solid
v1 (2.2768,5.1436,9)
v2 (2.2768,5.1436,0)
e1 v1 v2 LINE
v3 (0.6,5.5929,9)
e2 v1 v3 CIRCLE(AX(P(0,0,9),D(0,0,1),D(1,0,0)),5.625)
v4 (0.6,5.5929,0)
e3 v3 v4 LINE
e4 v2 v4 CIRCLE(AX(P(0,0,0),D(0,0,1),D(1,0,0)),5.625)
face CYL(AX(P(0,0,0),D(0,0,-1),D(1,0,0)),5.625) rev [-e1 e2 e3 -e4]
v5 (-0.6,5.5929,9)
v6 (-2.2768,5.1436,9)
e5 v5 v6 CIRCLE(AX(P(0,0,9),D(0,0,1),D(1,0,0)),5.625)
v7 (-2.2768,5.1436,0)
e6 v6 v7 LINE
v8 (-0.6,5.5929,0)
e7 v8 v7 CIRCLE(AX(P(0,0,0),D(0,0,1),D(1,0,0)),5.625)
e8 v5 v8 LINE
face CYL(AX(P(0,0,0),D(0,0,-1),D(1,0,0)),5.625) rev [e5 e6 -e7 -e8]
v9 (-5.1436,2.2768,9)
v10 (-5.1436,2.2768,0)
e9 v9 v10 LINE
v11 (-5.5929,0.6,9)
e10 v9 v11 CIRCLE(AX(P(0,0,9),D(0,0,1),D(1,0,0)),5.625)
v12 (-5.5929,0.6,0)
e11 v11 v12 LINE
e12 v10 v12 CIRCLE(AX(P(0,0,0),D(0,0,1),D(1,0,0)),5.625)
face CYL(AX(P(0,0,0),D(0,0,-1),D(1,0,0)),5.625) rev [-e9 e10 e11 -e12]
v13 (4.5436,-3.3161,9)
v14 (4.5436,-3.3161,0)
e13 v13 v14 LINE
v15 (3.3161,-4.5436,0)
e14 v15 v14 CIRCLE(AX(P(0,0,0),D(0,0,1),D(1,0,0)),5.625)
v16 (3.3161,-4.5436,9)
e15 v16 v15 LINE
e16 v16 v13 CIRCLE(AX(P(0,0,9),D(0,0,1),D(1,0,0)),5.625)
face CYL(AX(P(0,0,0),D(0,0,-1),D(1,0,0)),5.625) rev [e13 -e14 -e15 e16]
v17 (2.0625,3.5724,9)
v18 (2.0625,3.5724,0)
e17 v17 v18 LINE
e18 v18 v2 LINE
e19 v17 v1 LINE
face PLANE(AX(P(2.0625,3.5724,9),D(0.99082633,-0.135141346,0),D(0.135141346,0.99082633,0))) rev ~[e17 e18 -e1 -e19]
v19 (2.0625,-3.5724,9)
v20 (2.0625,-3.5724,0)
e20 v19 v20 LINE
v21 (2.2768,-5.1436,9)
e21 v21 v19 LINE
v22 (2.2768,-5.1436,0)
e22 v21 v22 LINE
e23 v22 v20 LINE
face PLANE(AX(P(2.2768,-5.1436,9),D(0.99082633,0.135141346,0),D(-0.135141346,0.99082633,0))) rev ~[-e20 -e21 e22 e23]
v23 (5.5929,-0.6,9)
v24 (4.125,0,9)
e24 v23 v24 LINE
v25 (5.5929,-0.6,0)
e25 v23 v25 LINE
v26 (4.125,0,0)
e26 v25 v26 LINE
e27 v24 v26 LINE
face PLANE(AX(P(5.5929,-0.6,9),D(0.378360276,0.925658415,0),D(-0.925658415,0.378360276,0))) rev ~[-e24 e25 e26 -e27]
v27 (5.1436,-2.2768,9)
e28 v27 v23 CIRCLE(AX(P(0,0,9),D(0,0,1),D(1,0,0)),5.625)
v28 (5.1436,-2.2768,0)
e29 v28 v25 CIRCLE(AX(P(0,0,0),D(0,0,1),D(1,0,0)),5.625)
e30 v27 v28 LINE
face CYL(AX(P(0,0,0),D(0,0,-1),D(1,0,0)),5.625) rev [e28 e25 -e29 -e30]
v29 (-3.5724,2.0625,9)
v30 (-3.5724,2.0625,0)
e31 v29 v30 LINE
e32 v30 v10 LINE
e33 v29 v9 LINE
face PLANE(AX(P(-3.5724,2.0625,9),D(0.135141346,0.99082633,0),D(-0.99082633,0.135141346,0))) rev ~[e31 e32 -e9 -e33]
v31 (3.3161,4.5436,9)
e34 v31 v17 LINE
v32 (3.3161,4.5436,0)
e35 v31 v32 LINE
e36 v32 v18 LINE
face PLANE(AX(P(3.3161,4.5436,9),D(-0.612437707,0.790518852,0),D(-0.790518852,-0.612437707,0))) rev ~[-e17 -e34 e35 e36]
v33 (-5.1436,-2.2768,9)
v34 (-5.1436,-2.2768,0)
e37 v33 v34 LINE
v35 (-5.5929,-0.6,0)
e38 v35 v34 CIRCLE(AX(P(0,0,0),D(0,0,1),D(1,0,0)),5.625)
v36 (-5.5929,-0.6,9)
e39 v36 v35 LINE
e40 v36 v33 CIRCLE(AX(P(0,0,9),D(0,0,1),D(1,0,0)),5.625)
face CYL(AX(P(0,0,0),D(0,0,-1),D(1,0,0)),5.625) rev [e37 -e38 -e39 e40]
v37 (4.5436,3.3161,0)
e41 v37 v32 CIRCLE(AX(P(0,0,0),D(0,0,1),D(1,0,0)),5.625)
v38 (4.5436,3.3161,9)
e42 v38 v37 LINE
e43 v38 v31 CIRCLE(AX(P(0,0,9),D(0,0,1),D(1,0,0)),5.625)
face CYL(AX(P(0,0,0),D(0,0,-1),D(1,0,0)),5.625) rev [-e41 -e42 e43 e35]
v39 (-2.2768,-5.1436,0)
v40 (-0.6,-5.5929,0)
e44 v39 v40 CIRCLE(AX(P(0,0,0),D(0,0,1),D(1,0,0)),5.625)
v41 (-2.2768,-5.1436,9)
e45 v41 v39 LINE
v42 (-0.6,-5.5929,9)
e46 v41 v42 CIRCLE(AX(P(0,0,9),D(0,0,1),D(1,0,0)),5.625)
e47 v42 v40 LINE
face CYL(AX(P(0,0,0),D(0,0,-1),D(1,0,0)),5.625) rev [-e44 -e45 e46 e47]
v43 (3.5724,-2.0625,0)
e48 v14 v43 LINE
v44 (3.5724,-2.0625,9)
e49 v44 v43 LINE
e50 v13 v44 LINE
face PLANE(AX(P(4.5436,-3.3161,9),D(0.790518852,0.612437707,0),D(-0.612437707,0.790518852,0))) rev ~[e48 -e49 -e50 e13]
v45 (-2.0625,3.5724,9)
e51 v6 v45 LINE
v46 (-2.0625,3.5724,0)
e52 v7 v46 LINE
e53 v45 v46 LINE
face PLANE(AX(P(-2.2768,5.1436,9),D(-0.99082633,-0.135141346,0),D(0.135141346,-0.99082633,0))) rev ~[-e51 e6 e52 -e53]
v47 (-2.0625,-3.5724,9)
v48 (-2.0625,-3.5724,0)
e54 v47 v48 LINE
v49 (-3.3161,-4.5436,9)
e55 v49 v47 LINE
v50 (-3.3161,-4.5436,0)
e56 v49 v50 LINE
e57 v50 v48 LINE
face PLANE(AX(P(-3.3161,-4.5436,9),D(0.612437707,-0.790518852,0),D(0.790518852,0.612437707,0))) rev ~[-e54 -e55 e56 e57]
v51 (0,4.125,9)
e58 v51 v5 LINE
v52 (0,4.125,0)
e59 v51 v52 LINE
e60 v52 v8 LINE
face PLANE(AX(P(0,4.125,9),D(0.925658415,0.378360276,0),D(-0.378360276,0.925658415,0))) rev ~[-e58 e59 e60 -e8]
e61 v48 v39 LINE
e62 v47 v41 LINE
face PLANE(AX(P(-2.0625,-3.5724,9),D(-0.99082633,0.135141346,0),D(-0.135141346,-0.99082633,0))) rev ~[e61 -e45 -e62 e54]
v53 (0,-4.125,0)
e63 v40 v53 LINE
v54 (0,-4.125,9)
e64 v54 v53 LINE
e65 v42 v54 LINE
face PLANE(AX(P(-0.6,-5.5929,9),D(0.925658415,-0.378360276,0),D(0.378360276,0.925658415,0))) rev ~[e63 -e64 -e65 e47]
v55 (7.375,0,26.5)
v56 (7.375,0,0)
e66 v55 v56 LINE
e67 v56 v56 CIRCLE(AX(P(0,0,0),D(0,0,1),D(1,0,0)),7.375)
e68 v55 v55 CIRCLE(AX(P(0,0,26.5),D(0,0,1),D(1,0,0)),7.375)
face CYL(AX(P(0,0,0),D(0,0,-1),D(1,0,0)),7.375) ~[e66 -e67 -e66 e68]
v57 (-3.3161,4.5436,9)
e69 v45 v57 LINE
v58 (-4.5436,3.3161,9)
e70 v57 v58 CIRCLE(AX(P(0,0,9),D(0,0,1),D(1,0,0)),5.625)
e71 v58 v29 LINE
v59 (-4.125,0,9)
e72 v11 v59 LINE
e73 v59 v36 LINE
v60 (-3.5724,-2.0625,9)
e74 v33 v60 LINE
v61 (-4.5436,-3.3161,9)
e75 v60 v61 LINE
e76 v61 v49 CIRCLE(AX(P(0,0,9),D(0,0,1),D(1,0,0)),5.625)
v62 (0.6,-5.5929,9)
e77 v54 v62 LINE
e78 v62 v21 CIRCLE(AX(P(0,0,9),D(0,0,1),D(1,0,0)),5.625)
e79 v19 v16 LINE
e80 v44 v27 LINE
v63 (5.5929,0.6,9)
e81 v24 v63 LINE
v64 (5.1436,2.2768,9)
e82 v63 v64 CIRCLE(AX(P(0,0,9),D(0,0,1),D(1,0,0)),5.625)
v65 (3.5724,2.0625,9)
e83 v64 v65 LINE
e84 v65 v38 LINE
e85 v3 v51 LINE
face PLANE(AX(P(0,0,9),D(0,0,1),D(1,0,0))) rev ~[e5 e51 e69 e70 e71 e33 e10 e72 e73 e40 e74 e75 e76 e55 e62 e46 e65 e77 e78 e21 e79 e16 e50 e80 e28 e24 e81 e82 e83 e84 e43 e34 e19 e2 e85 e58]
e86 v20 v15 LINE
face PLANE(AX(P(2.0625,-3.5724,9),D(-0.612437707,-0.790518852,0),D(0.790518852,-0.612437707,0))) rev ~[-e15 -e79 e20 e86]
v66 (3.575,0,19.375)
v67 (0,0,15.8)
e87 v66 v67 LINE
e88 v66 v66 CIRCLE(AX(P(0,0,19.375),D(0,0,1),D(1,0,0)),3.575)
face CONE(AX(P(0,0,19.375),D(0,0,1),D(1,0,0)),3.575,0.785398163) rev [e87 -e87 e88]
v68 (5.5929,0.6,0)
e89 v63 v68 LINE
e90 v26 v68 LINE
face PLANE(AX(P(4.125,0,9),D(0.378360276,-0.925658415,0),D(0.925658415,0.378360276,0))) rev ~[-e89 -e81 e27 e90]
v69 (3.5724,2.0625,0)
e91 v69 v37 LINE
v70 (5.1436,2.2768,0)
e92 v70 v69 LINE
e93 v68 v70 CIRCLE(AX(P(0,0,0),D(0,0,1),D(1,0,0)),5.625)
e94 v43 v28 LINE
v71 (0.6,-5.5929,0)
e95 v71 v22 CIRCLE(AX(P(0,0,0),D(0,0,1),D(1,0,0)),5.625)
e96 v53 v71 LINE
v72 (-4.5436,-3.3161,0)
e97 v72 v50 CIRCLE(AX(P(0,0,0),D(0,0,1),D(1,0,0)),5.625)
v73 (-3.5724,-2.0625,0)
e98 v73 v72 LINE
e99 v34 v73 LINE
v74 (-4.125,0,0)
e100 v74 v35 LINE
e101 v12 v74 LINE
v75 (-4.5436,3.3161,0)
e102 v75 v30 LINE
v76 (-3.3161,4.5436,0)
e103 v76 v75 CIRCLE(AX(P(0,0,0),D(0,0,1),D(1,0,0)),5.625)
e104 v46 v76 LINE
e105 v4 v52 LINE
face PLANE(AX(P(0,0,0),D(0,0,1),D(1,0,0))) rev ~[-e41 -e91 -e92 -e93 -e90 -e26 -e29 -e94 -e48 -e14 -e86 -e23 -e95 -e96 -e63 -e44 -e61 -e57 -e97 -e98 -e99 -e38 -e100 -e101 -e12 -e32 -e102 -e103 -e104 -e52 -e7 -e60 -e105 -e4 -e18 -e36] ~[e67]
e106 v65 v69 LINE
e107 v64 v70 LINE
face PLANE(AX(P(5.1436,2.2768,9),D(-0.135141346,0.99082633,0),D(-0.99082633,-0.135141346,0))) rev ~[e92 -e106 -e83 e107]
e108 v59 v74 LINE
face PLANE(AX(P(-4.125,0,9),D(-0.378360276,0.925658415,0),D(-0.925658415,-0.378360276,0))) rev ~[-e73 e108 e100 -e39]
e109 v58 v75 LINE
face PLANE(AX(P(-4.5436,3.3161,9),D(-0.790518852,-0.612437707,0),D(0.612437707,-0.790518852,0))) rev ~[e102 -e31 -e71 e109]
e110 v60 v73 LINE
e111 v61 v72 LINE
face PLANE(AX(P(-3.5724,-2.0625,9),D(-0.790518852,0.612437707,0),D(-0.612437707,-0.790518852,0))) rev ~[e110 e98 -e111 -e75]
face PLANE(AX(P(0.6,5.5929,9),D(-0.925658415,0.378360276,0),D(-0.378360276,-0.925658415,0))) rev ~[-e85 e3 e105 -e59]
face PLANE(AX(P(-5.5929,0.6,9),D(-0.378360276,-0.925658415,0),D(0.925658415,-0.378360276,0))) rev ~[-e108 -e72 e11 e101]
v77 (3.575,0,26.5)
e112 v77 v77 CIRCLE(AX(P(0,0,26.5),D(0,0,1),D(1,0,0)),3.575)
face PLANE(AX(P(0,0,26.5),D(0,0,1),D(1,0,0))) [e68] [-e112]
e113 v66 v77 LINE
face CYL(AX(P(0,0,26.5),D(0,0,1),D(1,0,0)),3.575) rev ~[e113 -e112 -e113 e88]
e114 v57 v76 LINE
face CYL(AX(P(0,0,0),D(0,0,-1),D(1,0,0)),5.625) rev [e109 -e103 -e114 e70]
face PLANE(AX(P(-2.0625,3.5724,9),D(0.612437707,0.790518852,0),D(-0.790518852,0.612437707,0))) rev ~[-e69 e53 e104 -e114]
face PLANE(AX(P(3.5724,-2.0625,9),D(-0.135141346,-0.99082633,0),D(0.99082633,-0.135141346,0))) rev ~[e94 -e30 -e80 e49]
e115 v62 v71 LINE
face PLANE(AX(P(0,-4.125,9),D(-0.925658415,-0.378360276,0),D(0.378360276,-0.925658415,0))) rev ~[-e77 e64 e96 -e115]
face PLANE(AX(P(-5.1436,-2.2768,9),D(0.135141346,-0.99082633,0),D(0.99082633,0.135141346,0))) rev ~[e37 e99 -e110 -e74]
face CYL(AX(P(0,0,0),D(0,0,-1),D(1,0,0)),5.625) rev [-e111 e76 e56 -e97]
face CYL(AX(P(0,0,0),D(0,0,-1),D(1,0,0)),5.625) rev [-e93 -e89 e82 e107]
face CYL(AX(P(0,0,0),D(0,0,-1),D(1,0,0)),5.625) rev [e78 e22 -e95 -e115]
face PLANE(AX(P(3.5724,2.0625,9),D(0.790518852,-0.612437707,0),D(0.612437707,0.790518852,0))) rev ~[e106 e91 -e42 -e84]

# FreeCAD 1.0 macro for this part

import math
import FreeCAD as App
import Part
import Sketcher

V = App.Vector


def edges_at(feature, points):
    """Names of the edges that pass closest to the given points."""
    edges = feature.Shape.Edges
    near = lambda p: min(range(len(edges)), key=lambda i: edges[i].distToShape(Part.Vertex(*p))[0])
    return sorted({f"Edge{near(p) + 1}" for p in points})

doc = App.newDocument("Part")
body = doc.addObject("PartDesign::Body", "Body")

# Sketch on XY plane
sketch1 = doc.addObject("Sketcher::SketchObject", "Sketch")
body.addObject(sketch1)
sketch1.AttachmentSupport = (doc.XY_Plane, [""])
sketch1.MapMode = "FlatFace"
sketch1.addGeometry(Part.Circle(V(0, 0, 0), V(0, 0, 1), 7.375), False)
sketch1.addGeometry(Part.Circle(V(0, 0, 0), V(0, 0, 1), 5.625), False)
sketch1.addConstraint(Sketcher.Constraint("Coincident", 0, 3, -1, 1))
sketch1.addConstraint(Sketcher.Constraint("Coincident", 1, 3, -1, 1))
sketch1.addConstraint(Sketcher.Constraint("Diameter", 0, 14.75))
sketch1.addConstraint(Sketcher.Constraint("Diameter", 1, 11.25))
pad1 = doc.addObject("PartDesign::Pad", "Pad")
body.addObject(pad1)
pad1.Profile = sketch1
pad1.Length = 9

# Sketch on XY plane
sketch2 = doc.addObject("Sketcher::SketchObject", "Sketch001")
body.addObject(sketch2)
sketch2.AttachmentSupport = (doc.XY_Plane, [""])
sketch2.MapMode = "FlatFace"
sketch2.AttachmentOffset = App.Placement(V(0, 0, 9), App.Rotation())
sketch2.addGeometry(Part.Circle(V(0, 0, 0), V(0, 0, 1), 7.375), False)
sketch2.addConstraint(Sketcher.Constraint("Coincident", 0, 3, -1, 1))
sketch2.addConstraint(Sketcher.Constraint("Diameter", 0, 14.75))
pad2 = doc.addObject("PartDesign::Pad", "Pad001")
body.addObject(pad2)
pad2.Profile = sketch2
pad2.Length = 17.5

# Sketch on XY plane
sketch3 = doc.addObject("Sketcher::SketchObject", "Sketch002")
body.addObject(sketch3)
sketch3.AttachmentSupport = (doc.XY_Plane, [""])
sketch3.MapMode = "FlatFace"
sketch3.AttachmentOffset = App.Placement(V(0, 0, 26.5), App.Rotation())
sketch3.addGeometry(Part.Circle(V(0, 0, 0), V(0, 0, 1), 3.575), False)
sketch3.addConstraint(Sketcher.Constraint("Coincident", 0, 3, -1, 1))
sketch3.addConstraint(Sketcher.Constraint("Diameter", 0, 7.15))
pocket1 = doc.addObject("PartDesign::Pocket", "Pocket")
body.addObject(pocket1)
pocket1.Profile = sketch3
pocket1.Length = 7.5

# Sketch on XY plane
sketch4 = doc.addObject("Sketcher::SketchObject", "Sketch003")
body.addObject(sketch4)
sketch4.AttachmentSupport = (doc.XY_Plane, [""])
sketch4.MapMode = "FlatFace"
sketch4.AttachmentOffset = App.Placement(V(0, 0, 19), App.Rotation())
sketch4.addGeometry(Part.Circle(V(0, 0, 0), V(0, 0, 1), 3.575), False)
sketch4.addConstraint(Sketcher.Constraint("Coincident", 0, 3, -1, 1))
sketch4.addConstraint(Sketcher.Constraint("Diameter", 0, 7.15))
pocket2 = doc.addObject("PartDesign::Pocket", "Pocket001")
body.addObject(pocket2)
pocket2.Profile = sketch4
pocket2.Length = 3.2
doc.recompute()

chamfer = doc.addObject("PartDesign::Chamfer", "Chamfer")
body.addObject(chamfer)
chamfer.Base = (pocket2, edges_at(pocket2, [(-3.575, 0, 15.8)]))
chamfer.Size = 3.575

# Sketch on XY plane
sketch5 = doc.addObject("Sketcher::SketchObject", "Sketch004")
body.addObject(sketch5)
sketch5.AttachmentSupport = (doc.XY_Plane, [""])
sketch5.MapMode = "FlatFace"
sketch5.AttachmentOffset = App.Placement(V(0, 0, 9), App.Rotation())
sketch5.addGeometry(Part.ArcOfCircle(Part.Circle(V(0, 0, 0), V(0, 0, 1), 5.625), math.radians(173.876792), math.radians(186.123208)), False)
sketch5.addGeometry(Part.LineSegment(V(-5.5929, 0.6, 0), V(-4.125, 0, 0)), False)
sketch5.addGeometry(Part.LineSegment(V(-4.125, 0, 0), V(-5.5929, -0.6, 0)), False)
sketch5.addGeometry(Part.LineSegment(V(-3.5724, 2.0625, 0), V(-5.1436, 2.2768, 0)), False)
sketch5.addGeometry(Part.ArcOfCircle(Part.Circle(V(0, 0, 0), V(0, 0, 1), 5.625), math.radians(143.876545), math.radians(156.123559)), False)
sketch5.addGeometry(Part.LineSegment(V(-4.5436, 3.3161, 0), V(-3.5724, 2.0625, 0)), False)
sketch5.addGeometry(Part.ArcOfCircle(Part.Circle(V(0, 0, 0), V(0, 0, 1), 5.625), math.radians(-156.123559), math.radians(-143.876545)), False)
sketch5.addGeometry(Part.LineSegment(V(-5.1436, -2.2768, 0), V(-3.5724, -2.0625, 0)), False)
sketch5.addGeometry(Part.LineSegment(V(-3.5724, -2.0625, 0), V(-4.5436, -3.3161, 0)), False)
sketch5.addGeometry(Part.LineSegment(V(-2.0625, 3.5724, 0), V(-3.3161, 4.5436, 0)), False)
sketch5.addGeometry(Part.ArcOfCircle(Part.Circle(V(0, 0, 0), V(0, 0, 1), 5.625), math.radians(113.876441), math.radians(126.123455)), False)
sketch5.addGeometry(Part.LineSegment(V(-2.2768, 5.1436, 0), V(-2.0625, 3.5724, 0)), False)
sketch5.addGeometry(Part.ArcOfCircle(Part.Circle(V(0, 0, 0), V(0, 0, 1), 5.625), math.radians(-126.123455), math.radians(-113.876441)), False)
sketch5.addGeometry(Part.LineSegment(V(-3.3161, -4.5436, 0), V(-2.0625, -3.5724, 0)), False)
sketch5.addGeometry(Part.LineSegment(V(-2.0625, -3.5724, 0), V(-2.2768, -5.1436, 0)), False)
sketch5.addGeometry(Part.LineSegment(V(0, 4.125, 0), V(-0.6, 5.5929, 0)), False)
sketch5.addGeometry(Part.ArcOfCircle(Part.Circle(V(0, 0, 0), V(0, 0, 1), 5.625), math.radians(83.876792), math.radians(96.123208)), False)
sketch5.addGeometry(Part.LineSegment(V(0.6, 5.5929, 0), V(0, 4.125, 0)), False)
sketch5.addGeometry(Part.ArcOfCircle(Part.Circle(V(0, 0, 0), V(0, 0, 1), 5.625), math.radians(-96.123208), math.radians(-83.876792)), False)
sketch5.addGeometry(Part.LineSegment(V(-0.6, -5.5929, 0), V(0, -4.125, 0)), False)
sketch5.addGeometry(Part.LineSegment(V(0, -4.125, 0), V(0.6, -5.5929, 0)), False)
sketch5.addGeometry(Part.LineSegment(V(2.0625, 3.5724, 0), V(2.2768, 5.1436, 0)), False)
sketch5.addGeometry(Part.ArcOfCircle(Part.Circle(V(0, 0, 0), V(0, 0, 1), 5.625), math.radians(53.876545), math.radians(66.123559)), False)
sketch5.addGeometry(Part.LineSegment(V(3.3161, 4.5436, 0), V(2.0625, 3.5724, 0)), False)
sketch5.addGeometry(Part.ArcOfCircle(Part.Circle(V(0, 0, 0), V(0, 0, 1), 5.625), math.radians(-66.123559), math.radians(-53.876545)), False)
sketch5.addGeometry(Part.LineSegment(V(2.2768, -5.1436, 0), V(2.0625, -3.5724, 0)), False)
sketch5.addGeometry(Part.LineSegment(V(2.0625, -3.5724, 0), V(3.3161, -4.5436, 0)), False)
sketch5.addGeometry(Part.LineSegment(V(3.5724, 2.0625, 0), V(4.5436, 3.3161, 0)), False)
sketch5.addGeometry(Part.ArcOfCircle(Part.Circle(V(0, 0, 0), V(0, 0, 1), 5.625), math.radians(23.876441), math.radians(36.123455)), False)
sketch5.addGeometry(Part.LineSegment(V(5.1436, 2.2768, 0), V(3.5724, 2.0625, 0)), False)
sketch5.addGeometry(Part.ArcOfCircle(Part.Circle(V(0, 0, 0), V(0, 0, 1), 5.625), math.radians(-36.123455), math.radians(-23.876441)), False)
sketch5.addGeometry(Part.LineSegment(V(4.5436, -3.3161, 0), V(3.5724, -2.0625, 0)), False)
sketch5.addGeometry(Part.LineSegment(V(3.5724, -2.0625, 0), V(5.1436, -2.2768, 0)), False)
sketch5.addGeometry(Part.LineSegment(V(4.125, 0, 0), V(5.5929, 0.6, 0)), False)
sketch5.addGeometry(Part.ArcOfCircle(Part.Circle(V(0, 0, 0), V(0, 0, 1), 5.625), math.radians(-6.123208), math.radians(6.123208)), False)
sketch5.addGeometry(Part.LineSegment(V(5.5929, -0.6, 0), V(4.125, 0, 0)), False)
sketch5.addConstraint(Sketcher.Constraint("Coincident", 0, 1, 1, 1))
sketch5.addConstraint(Sketcher.Constraint("Coincident", 1, 2, 2, 1))
sketch5.addConstraint(Sketcher.Constraint("Coincident", 2, 2, 0, 2))
sketch5.addConstraint(Sketcher.Constraint("Coincident", 3, 2, 4, 2))
sketch5.addConstraint(Sketcher.Constraint("Coincident", 4, 1, 5, 1))
sketch5.addConstraint(Sketcher.Constraint("Coincident", 5, 2, 3, 1))
sketch5.addConstraint(Sketcher.Constraint("Coincident", 6, 1, 7, 1))
sketch5.addConstraint(Sketcher.Constraint("Coincident", 7, 2, 8, 1))
sketch5.addConstraint(Sketcher.Constraint("Coincident", 8, 2, 6, 2))
sketch5.addConstraint(Sketcher.Constraint("Coincident", 9, 2, 10, 2))
sketch5.addConstraint(Sketcher.Constraint("Coincident", 10, 1, 11, 1))
sketch5.addConstraint(Sketcher.Constraint("Coincident", 11, 2, 9, 1))
sketch5.addConstraint(Sketcher.Constraint("Coincident", 12, 1, 13, 1))
sketch5.addConstraint(Sketcher.Constraint("Coincident", 13, 2, 14, 1))
sketch5.addConstraint(Sketcher.Constraint("Coincident", 14, 2, 12, 2))
sketch5.addConstraint(Sketcher.Constraint("Coincident", 15, 2, 16, 2))
sketch5.addConstraint(Sketcher.Constraint("Coincident", 16, 1, 17, 1))
sketch5.addConstraint(Sketcher.Constraint("Coincident", 17, 2, 15, 1))
sketch5.addConstraint(Sketcher.Constraint("Coincident", 18, 1, 19, 1))
sketch5.addConstraint(Sketcher.Constraint("Coincident", 19, 2, 20, 1))
sketch5.addConstraint(Sketcher.Constraint("Coincident", 20, 2, 18, 2))
sketch5.addConstraint(Sketcher.Constraint("Coincident", 21, 2, 22, 2))
sketch5.addConstraint(Sketcher.Constraint("Coincident", 22, 1, 23, 1))
sketch5.addConstraint(Sketcher.Constraint("Coincident", 23, 2, 21, 1))
sketch5.addConstraint(Sketcher.Constraint("Coincident", 24, 1, 25, 1))
sketch5.addConstraint(Sketcher.Constraint("Coincident", 25, 2, 26, 1))
sketch5.addConstraint(Sketcher.Constraint("Coincident", 26, 2, 24, 2))
sketch5.addConstraint(Sketcher.Constraint("Coincident", 27, 2, 28, 2))
sketch5.addConstraint(Sketcher.Constraint("Coincident", 28, 1, 29, 1))
sketch5.addConstraint(Sketcher.Constraint("Coincident", 29, 2, 27, 1))
sketch5.addConstraint(Sketcher.Constraint("Coincident", 30, 1, 31, 1))
sketch5.addConstraint(Sketcher.Constraint("Coincident", 31, 2, 32, 1))
sketch5.addConstraint(Sketcher.Constraint("Coincident", 32, 2, 30, 2))
sketch5.addConstraint(Sketcher.Constraint("Coincident", 33, 2, 34, 2))
sketch5.addConstraint(Sketcher.Constraint("Coincident", 34, 1, 35, 1))
sketch5.addConstraint(Sketcher.Constraint("Coincident", 35, 2, 33, 1))
sketch5.addConstraint(Sketcher.Constraint("Coincident", 0, 3, -1, 1))
sketch5.addConstraint(Sketcher.Constraint("Coincident", 4, 3, -1, 1))
sketch5.addConstraint(Sketcher.Constraint("Coincident", 6, 3, -1, 1))
sketch5.addConstraint(Sketcher.Constraint("Coincident", 10, 3, -1, 1))
sketch5.addConstraint(Sketcher.Constraint("Coincident", 12, 3, -1, 1))
sketch5.addConstraint(Sketcher.Constraint("Coincident", 16, 3, -1, 1))
sketch5.addConstraint(Sketcher.Constraint("Coincident", 18, 3, -1, 1))
sketch5.addConstraint(Sketcher.Constraint("Coincident", 22, 3, -1, 1))
sketch5.addConstraint(Sketcher.Constraint("Coincident", 24, 3, -1, 1))
sketch5.addConstraint(Sketcher.Constraint("Coincident", 28, 3, -1, 1))
sketch5.addConstraint(Sketcher.Constraint("Coincident", 30, 3, -1, 1))
sketch5.addConstraint(Sketcher.Constraint("Coincident", 34, 3, -1, 1))
sketch5.addConstraint(Sketcher.Constraint("Equal", 0, 4))
sketch5.addConstraint(Sketcher.Constraint("Equal", 4, 6))
sketch5.addConstraint(Sketcher.Constraint("Equal", 6, 10))
sketch5.addConstraint(Sketcher.Constraint("Equal", 10, 12))
sketch5.addConstraint(Sketcher.Constraint("Equal", 12, 16))
sketch5.addConstraint(Sketcher.Constraint("Equal", 16, 18))
sketch5.addConstraint(Sketcher.Constraint("Equal", 18, 22))
sketch5.addConstraint(Sketcher.Constraint("Equal", 22, 24))
sketch5.addConstraint(Sketcher.Constraint("Equal", 24, 28))
sketch5.addConstraint(Sketcher.Constraint("Equal", 28, 30))
sketch5.addConstraint(Sketcher.Constraint("Equal", 30, 34))
sketch5.addConstraint(Sketcher.Constraint("Symmetric", 17, 2, 19, 2, -1, 1))
sketch5.addConstraint(Sketcher.Constraint("Symmetric", 13, 2, 23, 2, -1, 1))
sketch5.addConstraint(Sketcher.Constraint("Symmetric", 11, 2, 25, 2, -1, 1))
sketch5.addConstraint(Sketcher.Constraint("Symmetric", 7, 2, 29, 2, -1, 1))
sketch5.addConstraint(Sketcher.Constraint("Symmetric", 5, 2, 31, 2, -1, 1))
sketch5.addConstraint(Sketcher.Constraint("Symmetric", 1, 2, 35, 2, -1, 1))
sketch5.addConstraint(Sketcher.Constraint("Symmetric", 11, 2, 23, 2, -2))
sketch5.addConstraint(Sketcher.Constraint("Symmetric", 5, 2, 29, 2, -2))
sketch5.addConstraint(Sketcher.Constraint("PointOnObject", 1, 2, -1))
sketch5.addConstraint(Sketcher.Constraint("PointOnObject", 17, 2, -2))
sketch5.addConstraint(Sketcher.Constraint("Perpendicular", 8, 9))
sketch5.addConstraint(Sketcher.Constraint("Perpendicular", 7, 11))
sketch5.addConstraint(Sketcher.Constraint("Perpendicular", 5, 13))
sketch5.addConstraint(Sketcher.Constraint("Perpendicular", 3, 14))
sketch5.addConstraint(Sketcher.Constraint("Perpendicular", 2, 15))
sketch5.addConstraint(Sketcher.Constraint("Perpendicular", 1, 17))
sketch5.addConstraint(Sketcher.Constraint("Parallel", 17, 19))
sketch5.addConstraint(Sketcher.Constraint("Parallel", 15, 20))
sketch5.addConstraint(Sketcher.Constraint("Parallel", 14, 21))
sketch5.addConstraint(Sketcher.Constraint("Parallel", 13, 23))
sketch5.addConstraint(Sketcher.Constraint("Parallel", 11, 25))
sketch5.addConstraint(Sketcher.Constraint("Parallel", 9, 26))
sketch5.addConstraint(Sketcher.Constraint("Perpendicular", 26, 27))
sketch5.addConstraint(Sketcher.Constraint("Perpendicular", 25, 29))
sketch5.addConstraint(Sketcher.Constraint("Perpendicular", 23, 31))
sketch5.addConstraint(Sketcher.Constraint("Perpendicular", 21, 32))
sketch5.addConstraint(Sketcher.Constraint("Perpendicular", 20, 33))
sketch5.addConstraint(Sketcher.Constraint("Perpendicular", 19, 35))
sketch5.addConstraint(Sketcher.Constraint("Horizontal", 15, 2, 16, 1))
sketch5.addConstraint(Sketcher.Constraint("Horizontal", 10, 1, 21, 2))
sketch5.addConstraint(Sketcher.Constraint("Horizontal", 9, 2, 22, 1))
sketch5.addConstraint(Sketcher.Constraint("Equal", 2, 3))
sketch5.addConstraint(Sketcher.Constraint("Equal", 3, 5))
sketch5.addConstraint(Sketcher.Constraint("Equal", 8, 9))
sketch5.addConstraint(Sketcher.Constraint("Equal", 9, 11))
sketch5.addConstraint(Sketcher.Constraint("Equal", 14, 15))
sketch5.addConstraint(Sketcher.Constraint("DistanceY", -1, 1, 0, 1, 0.6))
sketch5.addConstraint(Sketcher.Constraint("DistanceX", 3, 2, 4, 1, 0.6))
sketch5.addConstraint(Sketcher.Constraint("Radius", 0, 5.625))
sketch5.addConstraint(Sketcher.Constraint("DistanceX", 5, 2, 11, 2, 1.51))
sketch5.addConstraint(Sketcher.Constraint("DistanceX", 1, 2, -1, 1, 4.125))
pad3 = doc.addObject("PartDesign::Pad", "Pad002")
body.addObject(pad3)
pad3.Profile = sketch5
pad3.Length = 9
pad3.Reversed = True

doc.recompute()
